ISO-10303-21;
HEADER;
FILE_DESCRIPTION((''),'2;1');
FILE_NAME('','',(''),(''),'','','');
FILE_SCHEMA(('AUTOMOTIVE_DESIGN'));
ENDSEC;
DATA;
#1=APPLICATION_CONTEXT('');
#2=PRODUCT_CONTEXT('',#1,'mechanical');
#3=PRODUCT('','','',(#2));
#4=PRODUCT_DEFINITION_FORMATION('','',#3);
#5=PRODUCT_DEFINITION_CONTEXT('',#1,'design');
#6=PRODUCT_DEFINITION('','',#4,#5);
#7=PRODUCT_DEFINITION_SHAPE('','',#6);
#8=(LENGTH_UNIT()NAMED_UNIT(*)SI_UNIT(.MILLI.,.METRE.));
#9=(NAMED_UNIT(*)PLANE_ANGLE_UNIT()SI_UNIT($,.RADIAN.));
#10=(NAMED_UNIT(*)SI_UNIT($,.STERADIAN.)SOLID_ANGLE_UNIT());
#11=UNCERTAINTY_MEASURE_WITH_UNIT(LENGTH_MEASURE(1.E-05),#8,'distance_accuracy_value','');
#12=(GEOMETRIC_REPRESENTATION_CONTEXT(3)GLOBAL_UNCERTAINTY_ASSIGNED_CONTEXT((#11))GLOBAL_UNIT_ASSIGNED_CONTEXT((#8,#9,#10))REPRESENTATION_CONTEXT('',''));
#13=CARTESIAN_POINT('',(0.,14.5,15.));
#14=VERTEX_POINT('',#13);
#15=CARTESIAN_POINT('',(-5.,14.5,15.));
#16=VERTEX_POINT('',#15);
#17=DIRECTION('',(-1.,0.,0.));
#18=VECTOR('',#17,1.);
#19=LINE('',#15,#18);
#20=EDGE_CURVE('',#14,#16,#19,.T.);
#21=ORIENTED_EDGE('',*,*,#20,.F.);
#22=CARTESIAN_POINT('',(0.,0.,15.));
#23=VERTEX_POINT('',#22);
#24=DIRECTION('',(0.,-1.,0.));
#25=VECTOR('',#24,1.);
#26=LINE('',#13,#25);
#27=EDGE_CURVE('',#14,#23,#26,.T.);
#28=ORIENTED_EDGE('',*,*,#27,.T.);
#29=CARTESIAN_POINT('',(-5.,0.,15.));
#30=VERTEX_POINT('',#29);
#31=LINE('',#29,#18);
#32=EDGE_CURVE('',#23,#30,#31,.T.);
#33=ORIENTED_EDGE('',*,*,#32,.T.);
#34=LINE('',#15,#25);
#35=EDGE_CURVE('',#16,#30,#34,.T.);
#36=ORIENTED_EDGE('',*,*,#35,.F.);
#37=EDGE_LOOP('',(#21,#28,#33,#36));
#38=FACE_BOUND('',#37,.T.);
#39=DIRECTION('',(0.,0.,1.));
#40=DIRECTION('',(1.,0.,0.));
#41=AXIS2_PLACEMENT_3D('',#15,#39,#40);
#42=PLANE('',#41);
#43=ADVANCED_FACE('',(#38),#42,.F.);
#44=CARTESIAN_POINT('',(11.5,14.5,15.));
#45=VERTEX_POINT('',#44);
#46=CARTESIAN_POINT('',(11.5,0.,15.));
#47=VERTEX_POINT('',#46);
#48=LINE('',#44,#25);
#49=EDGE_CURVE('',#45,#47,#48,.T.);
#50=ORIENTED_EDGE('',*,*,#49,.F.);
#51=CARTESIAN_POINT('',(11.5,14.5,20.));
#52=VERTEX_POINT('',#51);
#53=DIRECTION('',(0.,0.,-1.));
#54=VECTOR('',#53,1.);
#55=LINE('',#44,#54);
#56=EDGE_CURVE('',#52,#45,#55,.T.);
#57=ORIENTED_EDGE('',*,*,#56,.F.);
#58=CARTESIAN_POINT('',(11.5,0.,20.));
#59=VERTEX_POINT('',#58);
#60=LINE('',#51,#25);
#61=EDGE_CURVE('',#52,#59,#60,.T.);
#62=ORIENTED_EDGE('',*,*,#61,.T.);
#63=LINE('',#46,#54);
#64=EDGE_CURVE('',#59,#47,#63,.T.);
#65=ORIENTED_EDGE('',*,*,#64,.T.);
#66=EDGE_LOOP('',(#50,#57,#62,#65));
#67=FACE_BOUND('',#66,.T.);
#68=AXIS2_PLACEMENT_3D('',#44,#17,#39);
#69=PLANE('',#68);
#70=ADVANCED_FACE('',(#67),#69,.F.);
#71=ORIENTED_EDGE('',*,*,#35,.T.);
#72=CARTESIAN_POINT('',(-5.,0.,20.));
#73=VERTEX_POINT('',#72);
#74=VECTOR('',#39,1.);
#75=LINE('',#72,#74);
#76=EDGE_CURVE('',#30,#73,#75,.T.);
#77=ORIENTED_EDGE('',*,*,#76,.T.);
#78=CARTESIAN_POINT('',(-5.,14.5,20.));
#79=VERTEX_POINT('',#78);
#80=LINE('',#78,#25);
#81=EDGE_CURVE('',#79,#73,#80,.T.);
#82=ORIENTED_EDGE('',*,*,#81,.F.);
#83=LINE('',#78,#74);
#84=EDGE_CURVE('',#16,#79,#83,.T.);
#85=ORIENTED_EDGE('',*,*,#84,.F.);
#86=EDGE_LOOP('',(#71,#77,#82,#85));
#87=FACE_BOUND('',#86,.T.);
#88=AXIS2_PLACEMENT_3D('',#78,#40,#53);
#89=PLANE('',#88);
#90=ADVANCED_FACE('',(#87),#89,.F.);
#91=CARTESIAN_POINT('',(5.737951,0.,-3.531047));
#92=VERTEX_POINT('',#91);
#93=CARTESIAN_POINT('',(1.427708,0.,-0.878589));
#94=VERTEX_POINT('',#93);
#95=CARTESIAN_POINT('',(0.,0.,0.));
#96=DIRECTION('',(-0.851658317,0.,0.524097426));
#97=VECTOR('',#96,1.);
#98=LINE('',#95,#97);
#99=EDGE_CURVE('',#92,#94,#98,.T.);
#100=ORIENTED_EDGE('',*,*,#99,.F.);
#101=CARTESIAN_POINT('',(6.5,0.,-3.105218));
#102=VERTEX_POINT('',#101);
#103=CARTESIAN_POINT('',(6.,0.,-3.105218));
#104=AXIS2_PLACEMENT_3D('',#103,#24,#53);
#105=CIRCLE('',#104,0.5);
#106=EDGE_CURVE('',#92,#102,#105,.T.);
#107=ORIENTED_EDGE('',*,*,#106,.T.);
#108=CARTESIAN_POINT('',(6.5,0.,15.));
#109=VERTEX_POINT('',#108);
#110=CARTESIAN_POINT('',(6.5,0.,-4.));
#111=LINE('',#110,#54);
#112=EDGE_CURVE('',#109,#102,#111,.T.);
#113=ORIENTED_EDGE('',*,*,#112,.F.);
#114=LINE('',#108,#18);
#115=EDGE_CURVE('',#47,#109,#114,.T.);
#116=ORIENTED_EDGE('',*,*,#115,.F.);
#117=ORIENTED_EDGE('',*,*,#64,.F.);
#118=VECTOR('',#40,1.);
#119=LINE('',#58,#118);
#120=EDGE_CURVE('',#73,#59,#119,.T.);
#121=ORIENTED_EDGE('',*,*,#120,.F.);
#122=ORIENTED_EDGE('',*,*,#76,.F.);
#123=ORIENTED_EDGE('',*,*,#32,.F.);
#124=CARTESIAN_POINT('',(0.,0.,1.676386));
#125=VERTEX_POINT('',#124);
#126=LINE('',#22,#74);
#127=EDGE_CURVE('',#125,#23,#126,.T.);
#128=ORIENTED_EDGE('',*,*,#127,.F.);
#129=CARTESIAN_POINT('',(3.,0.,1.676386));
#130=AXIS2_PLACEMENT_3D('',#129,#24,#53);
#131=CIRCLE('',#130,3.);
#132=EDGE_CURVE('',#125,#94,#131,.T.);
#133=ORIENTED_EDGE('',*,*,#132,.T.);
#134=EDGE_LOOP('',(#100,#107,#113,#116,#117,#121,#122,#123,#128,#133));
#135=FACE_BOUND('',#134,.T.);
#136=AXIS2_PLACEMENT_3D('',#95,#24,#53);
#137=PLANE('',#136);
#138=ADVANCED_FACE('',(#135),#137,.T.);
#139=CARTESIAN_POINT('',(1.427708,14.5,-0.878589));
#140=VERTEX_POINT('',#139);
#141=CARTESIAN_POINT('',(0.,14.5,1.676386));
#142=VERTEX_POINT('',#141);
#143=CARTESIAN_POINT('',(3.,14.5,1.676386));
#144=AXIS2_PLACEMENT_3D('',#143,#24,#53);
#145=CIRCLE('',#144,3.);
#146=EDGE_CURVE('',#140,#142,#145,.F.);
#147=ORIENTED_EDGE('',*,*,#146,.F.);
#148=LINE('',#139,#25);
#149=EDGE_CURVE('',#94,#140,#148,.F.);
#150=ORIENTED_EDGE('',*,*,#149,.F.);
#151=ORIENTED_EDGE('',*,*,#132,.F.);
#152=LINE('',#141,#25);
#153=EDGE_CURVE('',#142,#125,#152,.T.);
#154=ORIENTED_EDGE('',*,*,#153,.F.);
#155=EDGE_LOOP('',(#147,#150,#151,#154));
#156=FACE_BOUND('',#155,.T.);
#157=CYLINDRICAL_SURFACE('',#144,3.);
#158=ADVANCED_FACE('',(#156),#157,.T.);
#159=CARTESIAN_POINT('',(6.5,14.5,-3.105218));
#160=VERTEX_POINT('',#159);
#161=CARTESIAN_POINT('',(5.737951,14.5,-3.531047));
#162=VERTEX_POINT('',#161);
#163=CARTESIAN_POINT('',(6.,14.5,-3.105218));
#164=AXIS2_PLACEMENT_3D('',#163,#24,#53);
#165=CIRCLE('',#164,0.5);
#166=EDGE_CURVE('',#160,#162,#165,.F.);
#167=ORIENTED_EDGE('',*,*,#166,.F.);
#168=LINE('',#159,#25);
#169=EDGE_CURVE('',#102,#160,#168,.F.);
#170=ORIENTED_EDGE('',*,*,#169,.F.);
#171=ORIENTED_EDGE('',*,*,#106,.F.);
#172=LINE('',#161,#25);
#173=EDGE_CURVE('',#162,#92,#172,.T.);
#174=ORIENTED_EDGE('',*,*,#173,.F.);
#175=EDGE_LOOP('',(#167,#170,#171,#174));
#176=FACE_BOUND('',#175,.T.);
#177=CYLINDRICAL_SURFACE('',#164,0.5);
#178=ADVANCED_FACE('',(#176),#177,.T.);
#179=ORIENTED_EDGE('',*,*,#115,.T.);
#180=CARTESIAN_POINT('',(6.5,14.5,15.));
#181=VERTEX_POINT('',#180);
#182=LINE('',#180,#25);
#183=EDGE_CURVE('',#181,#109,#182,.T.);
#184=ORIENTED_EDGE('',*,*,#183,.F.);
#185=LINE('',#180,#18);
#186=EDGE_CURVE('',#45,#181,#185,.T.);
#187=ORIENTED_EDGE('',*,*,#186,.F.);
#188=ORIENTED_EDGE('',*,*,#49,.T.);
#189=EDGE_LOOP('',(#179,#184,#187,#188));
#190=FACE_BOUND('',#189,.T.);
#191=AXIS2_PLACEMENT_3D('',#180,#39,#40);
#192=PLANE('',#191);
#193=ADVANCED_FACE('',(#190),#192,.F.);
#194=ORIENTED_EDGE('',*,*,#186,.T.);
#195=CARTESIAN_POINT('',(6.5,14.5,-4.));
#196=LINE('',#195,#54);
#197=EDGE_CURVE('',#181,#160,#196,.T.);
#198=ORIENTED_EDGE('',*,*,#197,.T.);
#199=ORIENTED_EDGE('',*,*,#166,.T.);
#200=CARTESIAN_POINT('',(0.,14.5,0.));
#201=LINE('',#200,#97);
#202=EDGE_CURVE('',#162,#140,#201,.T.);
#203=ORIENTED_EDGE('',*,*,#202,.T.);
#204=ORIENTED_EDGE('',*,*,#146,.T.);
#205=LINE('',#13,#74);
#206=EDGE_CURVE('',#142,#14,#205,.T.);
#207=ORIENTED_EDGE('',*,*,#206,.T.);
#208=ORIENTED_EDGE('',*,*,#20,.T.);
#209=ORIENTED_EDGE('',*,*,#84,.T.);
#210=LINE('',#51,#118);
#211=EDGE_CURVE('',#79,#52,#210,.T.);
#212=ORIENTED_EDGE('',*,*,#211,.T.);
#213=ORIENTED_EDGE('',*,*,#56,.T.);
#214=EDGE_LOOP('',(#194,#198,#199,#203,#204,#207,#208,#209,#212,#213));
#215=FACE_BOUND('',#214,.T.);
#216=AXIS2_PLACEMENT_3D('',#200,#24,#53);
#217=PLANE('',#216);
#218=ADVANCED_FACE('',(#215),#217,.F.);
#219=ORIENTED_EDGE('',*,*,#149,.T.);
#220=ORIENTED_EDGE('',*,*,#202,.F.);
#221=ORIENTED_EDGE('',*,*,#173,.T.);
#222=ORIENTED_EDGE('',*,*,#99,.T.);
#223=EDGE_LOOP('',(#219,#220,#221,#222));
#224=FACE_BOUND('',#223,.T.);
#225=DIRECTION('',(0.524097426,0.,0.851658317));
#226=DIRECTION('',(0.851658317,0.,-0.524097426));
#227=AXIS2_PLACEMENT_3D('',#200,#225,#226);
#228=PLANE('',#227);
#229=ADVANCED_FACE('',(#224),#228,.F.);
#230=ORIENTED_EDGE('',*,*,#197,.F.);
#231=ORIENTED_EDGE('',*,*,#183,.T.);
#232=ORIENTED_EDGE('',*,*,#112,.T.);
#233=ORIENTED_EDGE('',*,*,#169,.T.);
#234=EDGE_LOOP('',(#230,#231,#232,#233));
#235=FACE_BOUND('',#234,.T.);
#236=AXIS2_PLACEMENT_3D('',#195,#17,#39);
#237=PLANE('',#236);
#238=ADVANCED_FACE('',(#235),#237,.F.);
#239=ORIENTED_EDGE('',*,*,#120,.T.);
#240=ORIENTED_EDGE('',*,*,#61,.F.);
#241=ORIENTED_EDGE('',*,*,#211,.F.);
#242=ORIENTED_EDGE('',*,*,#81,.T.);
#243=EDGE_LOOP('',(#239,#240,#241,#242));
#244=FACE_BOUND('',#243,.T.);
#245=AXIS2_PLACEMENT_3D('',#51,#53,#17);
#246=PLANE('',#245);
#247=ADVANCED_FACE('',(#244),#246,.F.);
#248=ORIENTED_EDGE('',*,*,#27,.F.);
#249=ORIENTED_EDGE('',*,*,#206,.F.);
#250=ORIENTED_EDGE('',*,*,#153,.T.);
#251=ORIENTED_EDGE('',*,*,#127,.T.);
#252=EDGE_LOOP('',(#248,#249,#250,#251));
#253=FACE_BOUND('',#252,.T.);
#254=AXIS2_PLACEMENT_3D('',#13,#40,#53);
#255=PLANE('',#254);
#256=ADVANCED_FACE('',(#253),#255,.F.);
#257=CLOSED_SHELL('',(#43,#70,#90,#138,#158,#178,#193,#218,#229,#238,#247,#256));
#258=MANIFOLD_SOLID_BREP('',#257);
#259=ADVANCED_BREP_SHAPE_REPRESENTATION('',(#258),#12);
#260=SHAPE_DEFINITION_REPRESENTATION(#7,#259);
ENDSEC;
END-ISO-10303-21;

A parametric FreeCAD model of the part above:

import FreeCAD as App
import Part
import Sketcher
Q = App.Units.Quantity


def edges_at(feature, points):
    """Names of the edges that pass closest to the given points."""
    edges = feature.Shape.Edges
    near = lambda p: min(range(len(edges)), key=lambda i: edges[i].distToShape(Part.Vertex(*p))[0])
    return sorted({f"Edge{near(p) + 1}" for p in points})


def add_polygon(sketch, points):
    """Adds a closed chain of lines whose ends are joined by coincident constraints."""
    first, n = sketch.GeometryCount, len(points)
    for a, b in zip(points, points[1:] + points[:1]):
        sketch.addGeometry(Part.LineSegment(App.Vector(*a, 0), App.Vector(*b, 0)), False)
    for i in range(n):
        sketch.addConstraint(Sketcher.Constraint("Coincident", first + i, 2, first + (i + 1) % n, 1))

doc = App.newDocument("Part")
body = doc.addObject("PartDesign::Body", "Body")

sketch1 = body.newObject("Sketcher::SketchObject", "Sketch")
sketch1.AttachmentSupport = (doc.getObject("XZ_Plane"), [""])
sketch1.MapMode = "FlatFace"
add_polygon(sketch1, [(6.5, -4), (0, 0), (0, 15), (-5, 15), (-5, 20), (11.5, 20), (11.5, 15), (6.5, 15)])
sketch1.addConstraint(Sketcher.Constraint("Vertical", 1))
sketch1.addConstraint(Sketcher.Constraint("Horizontal", 2))
sketch1.addConstraint(Sketcher.Constraint("Vertical", 3))
sketch1.addConstraint(Sketcher.Constraint("Horizontal", 4))
sketch1.addConstraint(Sketcher.Constraint("Vertical", 5))
sketch1.addConstraint(Sketcher.Constraint("Horizontal", 6))
sketch1.addConstraint(Sketcher.Constraint("Vertical", 7))
sketch1.addConstraint(Sketcher.Constraint("Coincident", 0, 2, -1, 1))
sketch1.addConstraint(Sketcher.Constraint("Horizontal", 2, 2, 5, 2))
sketch1.addConstraint(Sketcher.Constraint("Equal", 2, 6))
sketch1.addConstraint(Sketcher.Constraint("Equal", 6, 3))
sketch1.addConstraint(Sketcher.Constraint("DistanceX", 2, 2, 2, 1, Q("5 mm")))
sketch1.addConstraint(Sketcher.Constraint("DistanceY", 1, 1, 1, 2, Q("15 mm")))
sketch1.addConstraint(Sketcher.Constraint("DistanceY", 7, 2, 7, 1, Q("19 mm")))
sketch1.addConstraint(Sketcher.Constraint("DistanceX", 4, 1, 4, 2, Q("16.5 mm")))
pad1 = body.newObject("PartDesign::Pad", "Pad")
pad1.Profile = sketch1
pad1.Length = 14.5
pad1.Reversed = True
doc.recompute()

fillet = body.newObject("PartDesign::Fillet", "Fillet")
fillet.Base = (pad1, edges_at(pad1, [(0, 7.25, 0)]))
fillet.Radius = 3
doc.recompute()

fillet2 = body.newObject("PartDesign::Fillet", "Fillet001")
fillet2.Base = (fillet, edges_at(fillet, [(6.5, 7.25, -4)]))
fillet2.Radius = 0.5

doc.recompute()
